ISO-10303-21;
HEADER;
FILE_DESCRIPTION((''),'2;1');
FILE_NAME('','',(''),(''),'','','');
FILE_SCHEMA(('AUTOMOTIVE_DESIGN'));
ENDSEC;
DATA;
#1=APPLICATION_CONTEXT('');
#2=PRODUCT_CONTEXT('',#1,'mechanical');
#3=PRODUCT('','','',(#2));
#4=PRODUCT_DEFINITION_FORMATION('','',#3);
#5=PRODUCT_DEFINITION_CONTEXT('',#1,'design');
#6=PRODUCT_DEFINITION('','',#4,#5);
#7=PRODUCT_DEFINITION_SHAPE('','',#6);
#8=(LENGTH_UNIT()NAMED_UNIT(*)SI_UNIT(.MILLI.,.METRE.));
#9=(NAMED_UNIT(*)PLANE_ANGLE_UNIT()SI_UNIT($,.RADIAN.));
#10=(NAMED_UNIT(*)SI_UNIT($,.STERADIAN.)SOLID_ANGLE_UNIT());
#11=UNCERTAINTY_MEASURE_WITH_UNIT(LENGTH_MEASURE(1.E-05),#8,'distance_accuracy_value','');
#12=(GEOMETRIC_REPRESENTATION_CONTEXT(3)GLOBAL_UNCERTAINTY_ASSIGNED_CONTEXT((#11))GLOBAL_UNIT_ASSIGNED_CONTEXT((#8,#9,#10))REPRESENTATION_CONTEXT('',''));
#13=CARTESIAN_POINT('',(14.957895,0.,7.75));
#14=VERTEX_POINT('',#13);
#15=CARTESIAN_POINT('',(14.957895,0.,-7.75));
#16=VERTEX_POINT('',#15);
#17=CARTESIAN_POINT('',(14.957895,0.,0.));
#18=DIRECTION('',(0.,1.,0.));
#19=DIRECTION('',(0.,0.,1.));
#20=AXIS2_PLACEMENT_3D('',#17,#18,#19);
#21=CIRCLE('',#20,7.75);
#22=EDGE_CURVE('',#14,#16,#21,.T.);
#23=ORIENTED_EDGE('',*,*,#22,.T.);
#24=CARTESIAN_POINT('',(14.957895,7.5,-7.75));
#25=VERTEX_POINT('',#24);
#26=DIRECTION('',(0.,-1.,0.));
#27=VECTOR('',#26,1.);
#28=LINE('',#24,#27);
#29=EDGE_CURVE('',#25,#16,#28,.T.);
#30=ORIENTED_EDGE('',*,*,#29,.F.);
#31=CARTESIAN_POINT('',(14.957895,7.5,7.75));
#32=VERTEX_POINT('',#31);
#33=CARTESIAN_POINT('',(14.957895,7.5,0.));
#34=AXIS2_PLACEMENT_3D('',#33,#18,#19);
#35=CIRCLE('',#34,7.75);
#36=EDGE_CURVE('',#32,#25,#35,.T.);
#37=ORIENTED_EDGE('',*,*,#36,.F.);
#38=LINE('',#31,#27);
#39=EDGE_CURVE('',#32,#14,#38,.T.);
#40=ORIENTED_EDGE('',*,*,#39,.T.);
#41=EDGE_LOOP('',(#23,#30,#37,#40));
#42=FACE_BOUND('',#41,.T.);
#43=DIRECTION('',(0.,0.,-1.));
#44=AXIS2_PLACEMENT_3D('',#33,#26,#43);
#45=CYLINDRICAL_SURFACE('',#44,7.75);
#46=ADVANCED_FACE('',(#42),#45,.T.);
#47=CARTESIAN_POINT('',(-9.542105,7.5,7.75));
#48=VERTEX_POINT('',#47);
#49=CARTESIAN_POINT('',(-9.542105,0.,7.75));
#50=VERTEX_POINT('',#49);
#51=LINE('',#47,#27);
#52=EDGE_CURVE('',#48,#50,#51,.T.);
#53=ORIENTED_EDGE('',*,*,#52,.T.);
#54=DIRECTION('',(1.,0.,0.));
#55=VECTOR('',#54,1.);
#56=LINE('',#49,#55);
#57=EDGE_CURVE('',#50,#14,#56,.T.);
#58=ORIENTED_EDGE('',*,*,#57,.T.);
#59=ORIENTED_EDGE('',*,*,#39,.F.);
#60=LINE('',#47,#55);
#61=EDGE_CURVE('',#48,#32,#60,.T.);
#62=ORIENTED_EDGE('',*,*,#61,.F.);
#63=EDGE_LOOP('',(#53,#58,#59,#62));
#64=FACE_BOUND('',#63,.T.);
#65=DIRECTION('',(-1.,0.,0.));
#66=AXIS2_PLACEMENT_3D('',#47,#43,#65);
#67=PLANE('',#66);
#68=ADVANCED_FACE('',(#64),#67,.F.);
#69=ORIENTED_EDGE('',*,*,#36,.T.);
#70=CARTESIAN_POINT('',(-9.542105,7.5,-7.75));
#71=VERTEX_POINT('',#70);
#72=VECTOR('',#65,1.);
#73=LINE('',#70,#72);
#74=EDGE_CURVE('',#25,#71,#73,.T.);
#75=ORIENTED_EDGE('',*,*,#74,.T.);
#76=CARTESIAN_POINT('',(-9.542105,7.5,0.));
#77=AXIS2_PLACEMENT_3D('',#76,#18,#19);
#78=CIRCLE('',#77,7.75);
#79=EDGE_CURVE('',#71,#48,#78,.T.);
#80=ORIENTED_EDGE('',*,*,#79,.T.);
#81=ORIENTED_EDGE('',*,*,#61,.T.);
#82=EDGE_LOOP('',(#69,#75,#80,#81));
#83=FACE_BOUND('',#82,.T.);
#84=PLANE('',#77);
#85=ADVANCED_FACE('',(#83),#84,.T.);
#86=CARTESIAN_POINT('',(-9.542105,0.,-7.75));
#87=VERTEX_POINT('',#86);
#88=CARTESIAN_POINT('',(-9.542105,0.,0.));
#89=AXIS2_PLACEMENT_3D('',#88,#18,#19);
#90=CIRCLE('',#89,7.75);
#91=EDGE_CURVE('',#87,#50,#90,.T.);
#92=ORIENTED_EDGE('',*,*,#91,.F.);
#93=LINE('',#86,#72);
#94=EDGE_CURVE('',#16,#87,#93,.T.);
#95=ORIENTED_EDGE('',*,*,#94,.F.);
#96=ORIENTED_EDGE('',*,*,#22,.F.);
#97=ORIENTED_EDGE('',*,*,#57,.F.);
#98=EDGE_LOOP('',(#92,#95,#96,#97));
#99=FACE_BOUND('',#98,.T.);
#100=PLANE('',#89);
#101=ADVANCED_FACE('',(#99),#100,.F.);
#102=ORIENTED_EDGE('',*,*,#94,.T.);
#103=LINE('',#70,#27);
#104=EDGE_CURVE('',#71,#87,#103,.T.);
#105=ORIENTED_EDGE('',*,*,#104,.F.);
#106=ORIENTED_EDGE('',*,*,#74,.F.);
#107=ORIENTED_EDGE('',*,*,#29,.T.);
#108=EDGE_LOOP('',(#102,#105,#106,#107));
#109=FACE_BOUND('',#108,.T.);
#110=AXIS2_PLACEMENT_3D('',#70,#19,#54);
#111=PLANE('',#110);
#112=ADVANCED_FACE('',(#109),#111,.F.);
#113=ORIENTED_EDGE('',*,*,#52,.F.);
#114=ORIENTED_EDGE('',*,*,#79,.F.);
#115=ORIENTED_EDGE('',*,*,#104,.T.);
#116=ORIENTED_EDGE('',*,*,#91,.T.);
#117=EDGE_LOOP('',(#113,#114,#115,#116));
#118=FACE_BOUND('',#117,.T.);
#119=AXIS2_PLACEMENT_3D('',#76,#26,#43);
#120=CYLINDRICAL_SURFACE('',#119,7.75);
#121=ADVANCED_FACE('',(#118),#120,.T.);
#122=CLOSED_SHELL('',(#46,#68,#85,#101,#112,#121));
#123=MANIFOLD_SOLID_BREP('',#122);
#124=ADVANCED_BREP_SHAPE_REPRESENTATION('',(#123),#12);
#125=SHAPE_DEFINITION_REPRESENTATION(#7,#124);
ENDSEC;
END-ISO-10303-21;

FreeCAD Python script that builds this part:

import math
import FreeCAD as App
import Part
import Sketcher
from FreeCAD import Vector

doc = App.newDocument("Part")
body = doc.addObject("PartDesign::Body", "Body")

# Sketch on XZ plane
sketch1 = body.newObject("Sketcher::SketchObject", "Sketch")
sketch1.AttachmentSupport = (doc.getObject("XZ_Plane"), [""])
sketch1.MapMode = "FlatFace"
sketch1.addGeometry([
    Part.LineSegment(Vector(15, -8, 0), Vector(-10, -8, 0)),
    Part.ArcOfCircle(Part.Circle(Vector(-10, 0, 0), Vector(0, 0, 1), 8), math.radians(90), math.radians(270)),
    Part.LineSegment(Vector(-10, 8, 0), Vector(15, 8, 0)),
    Part.ArcOfCircle(Part.Circle(Vector(15, 0, 0), Vector(0, 0, 1), 8), math.radians(-90), math.radians(90)),
], False)
sketch1.addConstraint([
    Sketcher.Constraint("Tangent", 0, 2, 1, 2),
    Sketcher.Constraint("Tangent", 1, 1, 2, 1),
    Sketcher.Constraint("Tangent", 2, 2, 3, 2),
    Sketcher.Constraint("Tangent", 3, 1, 0, 1),
    Sketcher.Constraint("Horizontal", 0),
    Sketcher.Constraint("Horizontal", 2),
    Sketcher.Constraint("PointOnObject", 1, 3, -1),
    Sketcher.Constraint("Radius", 1, 7.75),
    Sketcher.Constraint("DistanceX", 0, 2, 0, 1, 24.5),
    Sketcher.Constraint("DistanceX", 1, 3, -1, 1, 9.542105),
])
pad1 = body.newObject("PartDesign::Pad", "Pad")
pad1.Profile = sketch1
pad1.Length = 7.5
pad1.Reversed = True

doc.recompute()
